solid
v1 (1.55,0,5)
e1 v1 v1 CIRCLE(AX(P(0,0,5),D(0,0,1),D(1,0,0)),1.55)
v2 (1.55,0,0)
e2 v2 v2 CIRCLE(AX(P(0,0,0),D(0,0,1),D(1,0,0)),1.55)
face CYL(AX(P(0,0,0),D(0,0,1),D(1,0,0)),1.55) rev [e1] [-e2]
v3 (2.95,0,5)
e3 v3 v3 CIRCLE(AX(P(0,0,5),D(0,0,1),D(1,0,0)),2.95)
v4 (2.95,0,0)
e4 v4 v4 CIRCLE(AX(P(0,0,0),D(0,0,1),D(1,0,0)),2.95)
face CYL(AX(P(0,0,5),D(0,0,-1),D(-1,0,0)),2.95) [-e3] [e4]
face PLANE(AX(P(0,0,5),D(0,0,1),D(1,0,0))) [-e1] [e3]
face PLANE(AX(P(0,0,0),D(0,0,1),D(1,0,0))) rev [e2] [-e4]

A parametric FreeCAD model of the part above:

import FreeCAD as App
import Part
import Sketcher

V = App.Vector

doc = App.newDocument("Part")
body = doc.addObject("PartDesign::Body", "Body")

# Sketch on XY plane
sketch1 = body.newObject("Sketcher::SketchObject", "Sketch")
sketch1.AttachmentSupport = (doc.getObject("XY_Plane"), [""])
sketch1.MapMode = "FlatFace"
sketch1.addGeometry(Part.Circle(V(0, 0, 0), V(0, 0, 1), 2.95), False)
sketch1.addConstraint(Sketcher.Constraint("Coincident", 0, 3, -1, 1))
sketch1.addConstraint(Sketcher.Constraint("Diameter", 0, 5.9))
pad1 = body.newObject("PartDesign::Pad", "Pad")
pad1.Profile = sketch1
pad1.Length = 5

# Sketch on XY plane
sketch2 = body.newObject("Sketcher::SketchObject", "Sketch001")
sketch2.AttachmentSupport = (doc.getObject("XY_Plane"), [""])
sketch2.MapMode = "FlatFace"
sketch2.AttachmentOffset = App.Placement(V(0, 0, 5), App.Rotation())
sketch2.addGeometry(Part.Circle(V(0, 0, 0), V(0, 0, 1), 1.55), False)
sketch2.addConstraint(Sketcher.Constraint("Coincident", 0, 3, -1, 1))
sketch2.addConstraint(Sketcher.Constraint("Diameter", 0, 3.1))
pocket1 = body.newObject("PartDesign::Pocket", "Pocket")
pocket1.Profile = sketch2
pocket1.Type = "ThroughAll"

doc.recompute()
